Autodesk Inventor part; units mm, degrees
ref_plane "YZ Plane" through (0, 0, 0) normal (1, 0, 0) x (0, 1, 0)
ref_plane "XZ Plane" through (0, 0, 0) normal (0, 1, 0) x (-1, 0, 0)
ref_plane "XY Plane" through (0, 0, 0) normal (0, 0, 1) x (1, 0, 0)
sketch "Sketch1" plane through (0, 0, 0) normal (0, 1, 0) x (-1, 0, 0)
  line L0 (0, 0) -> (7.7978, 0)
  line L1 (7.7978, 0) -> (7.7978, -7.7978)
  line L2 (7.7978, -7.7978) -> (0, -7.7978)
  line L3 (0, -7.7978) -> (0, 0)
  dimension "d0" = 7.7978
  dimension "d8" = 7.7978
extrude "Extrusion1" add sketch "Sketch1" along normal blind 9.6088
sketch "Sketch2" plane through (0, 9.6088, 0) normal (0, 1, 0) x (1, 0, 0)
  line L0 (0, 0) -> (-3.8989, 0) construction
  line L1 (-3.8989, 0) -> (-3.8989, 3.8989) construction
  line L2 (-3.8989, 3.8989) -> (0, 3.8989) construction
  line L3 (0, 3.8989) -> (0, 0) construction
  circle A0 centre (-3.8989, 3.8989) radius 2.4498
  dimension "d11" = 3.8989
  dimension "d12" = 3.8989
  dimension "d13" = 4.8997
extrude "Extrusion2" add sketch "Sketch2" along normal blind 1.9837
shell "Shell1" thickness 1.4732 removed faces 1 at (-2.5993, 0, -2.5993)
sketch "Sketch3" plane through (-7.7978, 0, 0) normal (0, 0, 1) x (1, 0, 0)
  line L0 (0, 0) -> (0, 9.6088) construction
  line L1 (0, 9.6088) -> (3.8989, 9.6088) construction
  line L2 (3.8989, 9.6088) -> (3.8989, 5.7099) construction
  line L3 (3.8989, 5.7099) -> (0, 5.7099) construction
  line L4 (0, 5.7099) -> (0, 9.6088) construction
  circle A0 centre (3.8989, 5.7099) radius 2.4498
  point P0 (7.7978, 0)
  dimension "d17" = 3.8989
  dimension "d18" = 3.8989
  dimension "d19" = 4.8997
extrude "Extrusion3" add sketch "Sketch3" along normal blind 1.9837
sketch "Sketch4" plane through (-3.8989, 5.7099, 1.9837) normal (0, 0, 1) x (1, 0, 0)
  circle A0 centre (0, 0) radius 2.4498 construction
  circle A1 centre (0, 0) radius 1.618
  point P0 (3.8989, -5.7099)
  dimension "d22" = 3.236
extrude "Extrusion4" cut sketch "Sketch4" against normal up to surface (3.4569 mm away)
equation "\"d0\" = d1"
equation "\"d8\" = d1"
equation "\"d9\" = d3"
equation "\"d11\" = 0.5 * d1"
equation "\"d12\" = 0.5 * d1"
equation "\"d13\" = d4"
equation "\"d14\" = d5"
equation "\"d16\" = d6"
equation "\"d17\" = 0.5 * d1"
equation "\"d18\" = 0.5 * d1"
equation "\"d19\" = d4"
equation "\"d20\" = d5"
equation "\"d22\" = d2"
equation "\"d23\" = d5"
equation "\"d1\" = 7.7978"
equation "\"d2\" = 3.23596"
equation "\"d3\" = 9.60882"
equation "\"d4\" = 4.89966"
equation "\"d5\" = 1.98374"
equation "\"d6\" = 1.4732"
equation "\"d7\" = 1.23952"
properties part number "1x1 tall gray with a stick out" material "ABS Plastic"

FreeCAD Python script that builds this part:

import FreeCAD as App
import Part
import Sketcher
Q = App.Units.Quantity


def faces_at(feature, points):
    """Names of the faces that lie closest to the given points."""
    faces = feature.Shape.Faces
    near = lambda p: min(range(len(faces)), key=lambda i: faces[i].distToShape(Part.Vertex(*p))[0])
    return sorted({f"Face{near(p) + 1}" for p in points})


def add_polygon(sketch, points):
    """Adds a closed chain of lines whose ends are joined by coincident constraints."""
    first, n = sketch.GeometryCount, len(points)
    for a, b in zip(points, points[1:] + points[:1]):
        sketch.addGeometry(Part.LineSegment(App.Vector(*a, 0), App.Vector(*b, 0)), False)
    for i in range(n):
        sketch.addConstraint(Sketcher.Constraint("Coincident", first + i, 2, first + (i + 1) % n, 1))

doc = App.newDocument("Part")
body = doc.addObject("PartDesign::Body", "Body")

# Sketch on XZ plane
sketch1 = doc.addObject("Sketcher::SketchObject", "Sketch")
body.addObject(sketch1)
sketch1.AttachmentSupport = (doc.XZ_Plane, [""])
sketch1.MapMode = "FlatFace"
add_polygon(sketch1, [(-8, 0), (0, 0), (0, -8), (-8, -8)])  # lines 0-3
sketch1.addConstraint([
    Sketcher.Constraint("Horizontal", 0),
    Sketcher.Constraint("Vertical", 1),
    Sketcher.Constraint("Horizontal", 2),
    Sketcher.Constraint("Vertical", 3),
    Sketcher.Constraint("Coincident", 0, 2, -1, 1),
    Sketcher.Constraint("Equal", 2, 1),
    Sketcher.Constraint("DistanceX", 0, 1, 0, 2, Q("0.307 in")),
])
pad1 = doc.addObject("PartDesign::Pad", "Pad")
body.addObject(pad1)
pad1.Profile = sketch1
pad1.Length = Q("0.3782992 in")
pad1.Reversed = True

# Sketch on XZ plane
sketch2 = doc.addObject("Sketcher::SketchObject", "Sketch001")
body.addObject(sketch2)
sketch2.AttachmentSupport = (doc.XZ_Plane, [""])
sketch2.MapMode = "FlatFace"
sketch2.AttachmentOffset = App.Placement(App.Vector(0, 0, -0.3782992 * 25.4), App.Rotation())
sketch2.addGeometry(Part.Circle(App.Vector(-3.9, -3.9, 0), App.Vector(0, 0, 1), 2.4), False)
sketch2.addConstraint([
    Sketcher.Constraint("Diameter", 0, Q("0.1929 in")),
    Sketcher.Constraint("DistanceX", 0, 3, -1, 1, Q("0.1535 in")),
    Sketcher.Constraint("DistanceY", 0, 3, -1, 1, Q("0.1535 in")),
])
pad2 = doc.addObject("PartDesign::Pad", "Pad001")
body.addObject(pad2)
pad2.Profile = sketch2
pad2.Length = Q("0.0780984 in")
pad2.Reversed = True
doc.recompute()

thickness = doc.addObject("PartDesign::Thickness", "Thickness")
body.addObject(thickness)
thickness.Base = (pad2, faces_at(pad2, [(-2.599, 0, -2.599)]))
thickness.Value = Q("0.058 in")
thickness.Reversed = True
thickness.Join = "Intersection"

# Sketch on XY plane
sketch3 = doc.addObject("Sketcher::SketchObject", "Sketch002")
body.addObject(sketch3)
sketch3.AttachmentSupport = (doc.XY_Plane, [""])
sketch3.MapMode = "FlatFace"
sketch3.addGeometry(Part.Circle(App.Vector(-3.9, 5.7, 0), App.Vector(0, 0, 1), 2.4), False)
sketch3.addConstraint([
    Sketcher.Constraint("Diameter", 0, Q("0.1929 in")),
    Sketcher.Constraint("DistanceX", 0, 3, -1, 1, Q("0.1535 in")),
    Sketcher.Constraint("DistanceY", -1, 1, 0, 3, Q("0.2248 in")),
])
pad3 = doc.addObject("PartDesign::Pad", "Pad002")
body.addObject(pad3)
pad3.Profile = sketch3
pad3.Length = Q("0.0780984 in")

# Sketch on XY plane
sketch4 = doc.addObject("Sketcher::SketchObject", "Sketch003")
body.addObject(sketch4)
sketch4.AttachmentSupport = (doc.XY_Plane, [""])
sketch4.MapMode = "FlatFace"
sketch4.AttachmentOffset = App.Placement(App.Vector(0, 0, 0.0780984 * 25.4), App.Rotation())
sketch4.addGeometry(Part.Circle(App.Vector(-3.9, 5.7, 0), App.Vector(0, 0, 1), 1.6), False)
sketch4.addConstraint([
    Sketcher.Constraint("Diameter", 0, Q("0.1274 in")),
    Sketcher.Constraint("DistanceX", 0, 3, -1, 1, Q("0.1535 in")),
    Sketcher.Constraint("DistanceY", -1, 1, 0, 3, Q("0.2248 in")),
])
pocket1 = doc.addObject("PartDesign::Pocket", "Pocket")
body.addObject(pocket1)
pocket1.Profile = sketch4
pocket1.Length = Q("0.1360984 in")

doc.recompute()
